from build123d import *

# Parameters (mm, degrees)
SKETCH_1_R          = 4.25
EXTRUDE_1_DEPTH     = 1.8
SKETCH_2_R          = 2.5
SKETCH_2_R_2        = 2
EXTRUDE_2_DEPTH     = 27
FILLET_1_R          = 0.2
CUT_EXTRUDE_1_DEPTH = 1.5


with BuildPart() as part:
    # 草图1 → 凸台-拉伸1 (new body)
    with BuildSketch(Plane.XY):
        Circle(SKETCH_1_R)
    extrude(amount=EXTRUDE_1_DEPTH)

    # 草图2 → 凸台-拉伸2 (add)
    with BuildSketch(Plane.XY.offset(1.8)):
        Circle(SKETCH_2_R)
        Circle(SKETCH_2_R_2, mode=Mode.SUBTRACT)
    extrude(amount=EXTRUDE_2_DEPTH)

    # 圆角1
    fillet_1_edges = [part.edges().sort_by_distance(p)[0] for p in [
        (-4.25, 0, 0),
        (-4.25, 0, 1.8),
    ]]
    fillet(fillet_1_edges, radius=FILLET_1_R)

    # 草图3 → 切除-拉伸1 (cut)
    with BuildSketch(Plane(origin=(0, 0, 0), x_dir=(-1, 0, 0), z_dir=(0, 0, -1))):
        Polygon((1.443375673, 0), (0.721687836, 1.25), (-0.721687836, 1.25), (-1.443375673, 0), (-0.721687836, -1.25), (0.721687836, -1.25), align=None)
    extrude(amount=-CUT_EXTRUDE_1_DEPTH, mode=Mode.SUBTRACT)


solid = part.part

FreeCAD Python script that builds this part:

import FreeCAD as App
import Part
import Sketcher
from FreeCAD import Vector
Q = App.Units.Quantity


def edges_at(feature, points):
    """Names of the edges that pass closest to the given points."""
    edges = feature.Shape.Edges
    near = lambda p: min(range(len(edges)), key=lambda i: edges[i].distToShape(Part.Vertex(*p))[0])
    return sorted({f"Edge{near(p) + 1}" for p in points})


def add_polygon(sketch, points):
    """Adds a closed chain of lines whose ends are joined by coincident constraints."""
    first, n = sketch.GeometryCount, len(points)
    for a, b in zip(points, points[1:] + points[:1]):
        sketch.addGeometry(Part.LineSegment(App.Vector(*a, 0), App.Vector(*b, 0)), False)
    for i in range(n):
        sketch.addConstraint(Sketcher.Constraint("Coincident", first + i, 2, first + (i + 1) % n, 1))

doc = App.newDocument("Part")
params = doc.addObject("Spreadsheet::Sheet", "Params")
for row, (alias, value) in enumerate([
    ("sketch1_diameter", "8.5 mm"),
    ("pad1_length", "1.8 mm"),
    ("sketch2_diameter", "5 mm"),
    ("sketch2_diameter2", "4 mm"),
    ("pad2_length", "27 mm"),
    ("fillet_radius", "0.2 mm"),
    ("pocket1_length", "1.5 mm"),
], start=1):
    params.set(f"A{row}", alias)
    params.set(f"B{row}", "=" + value)
    params.setAlias(f"B{row}", alias)

body = doc.addObject("PartDesign::Body", "Body")

# Sketch on XY plane
sketch1 = body.newObject("Sketcher::SketchObject", "Sketch")
sketch1.AttachmentSupport = (doc.getObject("XY_Plane"), [""])
sketch1.MapMode = "FlatFace"
sketch1.addGeometry(Part.Circle(Vector(0, 0, 0), Vector(0, 0, 1), 4.25), False)
sketch1.addConstraint([
    Sketcher.Constraint("Coincident", 0, 3, -1, 1),
    Sketcher.Constraint("Diameter", 0, 8.5),
])
sketch1.setExpression("Constraints[1]", "Params.sketch1_diameter")
pad1 = body.newObject("PartDesign::Pad", "Pad")
pad1.Profile = sketch1
pad1.setExpression("Length", "Params.pad1_length")

# Sketch on XY plane
sketch2 = body.newObject("Sketcher::SketchObject", "Sketch001")
sketch2.AttachmentSupport = (doc.getObject("XY_Plane"), [""])
sketch2.MapMode = "FlatFace"
sketch2.AttachmentOffset = App.Placement(Vector(0, 0, 1.8), App.Rotation())
sketch2.addGeometry([
    Part.Circle(Vector(0, 0, 0), Vector(0, 0, 1), 2.5),
    Part.Circle(Vector(0, 0, 0), Vector(0, 0, 1), 2),
], False)
sketch2.addConstraint([
    Sketcher.Constraint("Coincident", 0, 3, -1, 1),
    Sketcher.Constraint("Coincident", 1, 3, -1, 1),
    Sketcher.Constraint("Diameter", 0, 5.0),
    Sketcher.Constraint("Diameter", 1, 4.0),
])
sketch2.setExpression("Constraints[2]", "Params.sketch2_diameter")
sketch2.setExpression("Constraints[3]", "Params.sketch2_diameter2")
pad2 = body.newObject("PartDesign::Pad", "Pad001")
pad2.Profile = sketch2
pad2.setExpression("Length", "Params.pad2_length")
doc.recompute()

fillet = body.newObject("PartDesign::Fillet", "Fillet")
fillet.Base = (pad2, edges_at(pad2, [(-4.25, 0, 0), (-4.25, 0, 1.8)]))
fillet.setExpression("Radius", "Params.fillet_radius")

# Sketch on XY plane
sketch3 = body.newObject("Sketcher::SketchObject", "Sketch002")
sketch3.AttachmentSupport = (doc.getObject("XY_Plane"), [""])
sketch3.MapMode = "FlatFace"
add_polygon(sketch3, [(-1.443376, 0), (-0.721688, 1.25), (0.721688, 1.25), (1.443376, 0), (0.721688, -1.25), (-0.721688, -1.25)])  # lines 0-5
sketch3.addConstraint([
    Sketcher.Constraint("Horizontal", 1),
    Sketcher.Constraint("Horizontal", 4),
    Sketcher.Constraint("Symmetric", 0, 2, 3, 2, -1, 1),
    Sketcher.Constraint("Symmetric", 2, 2, 5, 2, -1, 1),
    Sketcher.Constraint("PointOnObject", 2, 2, -1),
    Sketcher.Constraint("Parallel", 2, 5),
    Sketcher.Constraint("Vertical", 1, 2, 3, 2),
    Sketcher.Constraint("Angle", 0, Q("60 deg")),
    Sketcher.Constraint("DistanceY", 3, 2, 1, 2, 2.5),
    Sketcher.Constraint("DistanceX", 1, 1, 1, 2, 1.443376),
])
pocket1 = body.newObject("PartDesign::Pocket", "Pocket")
pocket1.Profile = sketch3
pocket1.setExpression("Length", "Params.pocket1_length")
pocket1.Reversed = True

doc.recompute()
